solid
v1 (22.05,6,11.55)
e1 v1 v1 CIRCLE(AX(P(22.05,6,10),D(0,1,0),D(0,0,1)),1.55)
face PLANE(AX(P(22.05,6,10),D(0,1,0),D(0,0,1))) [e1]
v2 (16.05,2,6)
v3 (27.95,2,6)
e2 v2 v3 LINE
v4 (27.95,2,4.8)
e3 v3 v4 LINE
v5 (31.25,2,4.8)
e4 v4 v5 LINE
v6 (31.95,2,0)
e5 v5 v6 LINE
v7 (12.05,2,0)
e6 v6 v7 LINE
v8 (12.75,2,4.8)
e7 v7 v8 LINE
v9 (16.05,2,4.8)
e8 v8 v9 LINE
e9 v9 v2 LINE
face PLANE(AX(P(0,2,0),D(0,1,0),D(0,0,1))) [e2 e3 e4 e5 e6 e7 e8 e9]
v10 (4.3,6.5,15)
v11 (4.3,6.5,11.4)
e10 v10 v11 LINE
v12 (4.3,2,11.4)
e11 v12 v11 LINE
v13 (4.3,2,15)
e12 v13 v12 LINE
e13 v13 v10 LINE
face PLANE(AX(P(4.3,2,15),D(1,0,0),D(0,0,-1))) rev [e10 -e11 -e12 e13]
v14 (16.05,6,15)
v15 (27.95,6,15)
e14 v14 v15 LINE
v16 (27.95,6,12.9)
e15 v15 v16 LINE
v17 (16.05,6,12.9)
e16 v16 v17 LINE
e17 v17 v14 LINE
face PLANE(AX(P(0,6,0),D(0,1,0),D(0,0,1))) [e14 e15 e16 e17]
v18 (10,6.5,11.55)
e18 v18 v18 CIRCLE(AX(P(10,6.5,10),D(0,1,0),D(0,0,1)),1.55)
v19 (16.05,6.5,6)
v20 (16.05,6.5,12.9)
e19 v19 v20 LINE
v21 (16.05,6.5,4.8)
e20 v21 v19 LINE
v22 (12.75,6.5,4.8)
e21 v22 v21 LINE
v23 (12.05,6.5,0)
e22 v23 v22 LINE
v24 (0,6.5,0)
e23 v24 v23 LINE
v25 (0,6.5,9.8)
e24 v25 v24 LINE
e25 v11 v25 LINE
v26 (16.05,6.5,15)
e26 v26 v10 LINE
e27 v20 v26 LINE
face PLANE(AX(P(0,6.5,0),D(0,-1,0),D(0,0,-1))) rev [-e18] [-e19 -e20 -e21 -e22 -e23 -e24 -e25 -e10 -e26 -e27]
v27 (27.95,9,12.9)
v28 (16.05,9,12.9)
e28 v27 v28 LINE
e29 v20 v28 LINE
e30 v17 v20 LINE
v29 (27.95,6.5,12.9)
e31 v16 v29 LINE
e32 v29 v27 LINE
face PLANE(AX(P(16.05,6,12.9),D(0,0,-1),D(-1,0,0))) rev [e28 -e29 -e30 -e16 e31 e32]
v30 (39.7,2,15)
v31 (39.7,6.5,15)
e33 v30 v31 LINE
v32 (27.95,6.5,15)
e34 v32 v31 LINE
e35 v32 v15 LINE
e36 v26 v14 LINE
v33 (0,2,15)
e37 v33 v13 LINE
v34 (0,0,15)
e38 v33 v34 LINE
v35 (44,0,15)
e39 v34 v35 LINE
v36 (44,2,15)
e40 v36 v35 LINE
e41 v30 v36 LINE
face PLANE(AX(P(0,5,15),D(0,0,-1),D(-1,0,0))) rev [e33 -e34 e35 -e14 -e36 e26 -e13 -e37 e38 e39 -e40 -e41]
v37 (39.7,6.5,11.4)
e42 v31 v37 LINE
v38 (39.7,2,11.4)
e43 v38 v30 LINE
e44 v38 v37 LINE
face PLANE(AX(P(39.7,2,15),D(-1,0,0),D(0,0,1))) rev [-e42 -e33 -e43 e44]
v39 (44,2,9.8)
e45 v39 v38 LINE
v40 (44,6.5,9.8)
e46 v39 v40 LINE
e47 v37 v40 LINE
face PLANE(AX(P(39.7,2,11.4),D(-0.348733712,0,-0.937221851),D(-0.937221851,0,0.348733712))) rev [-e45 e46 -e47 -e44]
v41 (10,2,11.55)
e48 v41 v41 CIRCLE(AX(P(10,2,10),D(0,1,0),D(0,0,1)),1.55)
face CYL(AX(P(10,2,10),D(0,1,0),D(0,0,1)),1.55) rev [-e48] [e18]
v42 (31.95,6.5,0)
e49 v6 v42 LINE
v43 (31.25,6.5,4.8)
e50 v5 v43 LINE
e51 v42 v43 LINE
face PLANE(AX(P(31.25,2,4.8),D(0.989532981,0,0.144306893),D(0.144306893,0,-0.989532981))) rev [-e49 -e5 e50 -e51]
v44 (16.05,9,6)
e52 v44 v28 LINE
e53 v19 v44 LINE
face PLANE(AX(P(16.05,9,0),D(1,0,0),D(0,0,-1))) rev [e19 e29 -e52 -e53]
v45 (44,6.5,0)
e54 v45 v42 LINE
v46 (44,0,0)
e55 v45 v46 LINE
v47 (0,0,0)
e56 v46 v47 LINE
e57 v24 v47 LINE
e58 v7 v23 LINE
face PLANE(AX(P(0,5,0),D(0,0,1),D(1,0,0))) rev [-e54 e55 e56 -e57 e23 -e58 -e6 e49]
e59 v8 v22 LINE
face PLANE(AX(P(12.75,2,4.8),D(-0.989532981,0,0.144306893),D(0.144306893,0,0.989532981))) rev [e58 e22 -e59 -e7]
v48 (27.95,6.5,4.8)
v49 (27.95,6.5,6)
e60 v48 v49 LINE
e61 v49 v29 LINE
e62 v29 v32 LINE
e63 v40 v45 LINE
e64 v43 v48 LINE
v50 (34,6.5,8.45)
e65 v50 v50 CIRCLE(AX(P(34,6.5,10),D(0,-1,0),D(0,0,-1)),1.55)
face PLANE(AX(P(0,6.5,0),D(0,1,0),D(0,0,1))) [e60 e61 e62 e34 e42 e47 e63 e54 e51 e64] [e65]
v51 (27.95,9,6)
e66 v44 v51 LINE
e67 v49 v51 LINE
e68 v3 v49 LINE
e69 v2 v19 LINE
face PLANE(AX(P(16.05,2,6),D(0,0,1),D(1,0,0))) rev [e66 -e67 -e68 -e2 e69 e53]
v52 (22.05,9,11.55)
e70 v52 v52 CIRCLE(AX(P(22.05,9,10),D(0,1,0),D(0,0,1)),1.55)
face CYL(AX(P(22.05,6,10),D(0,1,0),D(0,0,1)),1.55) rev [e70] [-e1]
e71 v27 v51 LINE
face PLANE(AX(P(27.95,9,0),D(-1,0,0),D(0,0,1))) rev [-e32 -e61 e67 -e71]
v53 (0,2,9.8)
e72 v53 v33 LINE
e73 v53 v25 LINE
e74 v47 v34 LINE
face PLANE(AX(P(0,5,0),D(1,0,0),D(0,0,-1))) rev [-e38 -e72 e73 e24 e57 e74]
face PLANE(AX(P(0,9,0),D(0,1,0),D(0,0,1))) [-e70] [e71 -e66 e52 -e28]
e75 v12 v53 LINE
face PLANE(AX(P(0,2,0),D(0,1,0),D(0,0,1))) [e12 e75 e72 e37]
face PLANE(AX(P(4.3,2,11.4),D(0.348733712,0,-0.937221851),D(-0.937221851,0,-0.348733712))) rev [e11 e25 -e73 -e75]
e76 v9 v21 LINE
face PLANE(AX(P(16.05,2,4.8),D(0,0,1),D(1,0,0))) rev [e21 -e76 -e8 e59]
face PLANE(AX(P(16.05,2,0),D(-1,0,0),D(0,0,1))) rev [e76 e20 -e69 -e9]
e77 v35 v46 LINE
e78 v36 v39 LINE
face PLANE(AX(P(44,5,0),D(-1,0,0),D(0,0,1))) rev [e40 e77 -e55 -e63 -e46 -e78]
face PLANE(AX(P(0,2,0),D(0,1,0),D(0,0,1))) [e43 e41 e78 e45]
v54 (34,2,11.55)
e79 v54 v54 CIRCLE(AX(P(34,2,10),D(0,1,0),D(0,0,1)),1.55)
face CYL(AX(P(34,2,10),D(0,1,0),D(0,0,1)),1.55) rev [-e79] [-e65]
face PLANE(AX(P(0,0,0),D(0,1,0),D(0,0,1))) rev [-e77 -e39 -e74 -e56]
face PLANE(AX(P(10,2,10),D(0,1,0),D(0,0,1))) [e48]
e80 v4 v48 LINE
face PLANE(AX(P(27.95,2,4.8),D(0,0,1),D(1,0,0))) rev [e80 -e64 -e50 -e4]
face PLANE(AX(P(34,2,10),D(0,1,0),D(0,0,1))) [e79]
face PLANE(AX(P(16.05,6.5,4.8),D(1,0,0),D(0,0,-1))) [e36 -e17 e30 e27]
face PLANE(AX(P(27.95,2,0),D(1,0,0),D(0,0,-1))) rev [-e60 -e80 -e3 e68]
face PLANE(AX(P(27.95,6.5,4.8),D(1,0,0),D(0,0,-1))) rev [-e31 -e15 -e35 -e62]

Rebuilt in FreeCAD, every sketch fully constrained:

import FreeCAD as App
import Part
import Sketcher

V = App.Vector
Q = App.Units.Quantity

doc = App.newDocument("Part")
body = doc.addObject("PartDesign::Body", "Body")

sketch1 = body.newObject("Sketcher::SketchObject", "Sketch")
sketch1.AttachmentSupport = (doc.getObject("XZ_Plane"), [""])
sketch1.MapMode = "FlatFace"
sketch1.addGeometry(Part.LineSegment(V(0, 0, 0), V(0, 15, 0)), False)
sketch1.addGeometry(Part.LineSegment(V(0, 15, 0), V(44, 15, 0)), False)
sketch1.addGeometry(Part.LineSegment(V(44, 15, 0), V(44, 0, 0)), False)
sketch1.addGeometry(Part.LineSegment(V(44, 0, 0), V(0, 0, 0)), False)
sketch1.addConstraint(Sketcher.Constraint("Coincident", 0, 2, 1, 1))
sketch1.addConstraint(Sketcher.Constraint("Coincident", 1, 2, 2, 1))
sketch1.addConstraint(Sketcher.Constraint("Coincident", 2, 2, 3, 1))
sketch1.addConstraint(Sketcher.Constraint("Coincident", 3, 2, 0, 1))
sketch1.addConstraint(Sketcher.Constraint("Vertical", 0))
sketch1.addConstraint(Sketcher.Constraint("Horizontal", 1))
sketch1.addConstraint(Sketcher.Constraint("Vertical", 2))
sketch1.addConstraint(Sketcher.Constraint("Horizontal", 3))
sketch1.addConstraint(Sketcher.Constraint("Coincident", 3, 2, -1, 1))
sketch1.addConstraint(Sketcher.Constraint("DistanceX", 1, 1, 1, 2, Q("44 mm")))
sketch1.addConstraint(Sketcher.Constraint("DistanceY", 0, 1, 0, 2, Q("15 mm")))
pad1 = body.newObject("PartDesign::Pad", "Pad")
pad1.Profile = sketch1
pad1.Length = 5
pad1.Reversed = True

sketch2 = body.newObject("Sketcher::SketchObject", "Sketch001")
sketch2.AttachmentSupport = (doc.getObject("XZ_Plane"), [""])
sketch2.MapMode = "FlatFace"
sketch2.AttachmentOffset = App.Placement(V(0, 0, -5), App.Rotation())
sketch2.addGeometry(Part.LineSegment(V(16, 0, 0), V(16, 15, 0)), False)
sketch2.addGeometry(Part.LineSegment(V(16, 15, 0), V(28, 15, 0)), False)
sketch2.addGeometry(Part.LineSegment(V(28, 15, 0), V(28, 0, 0)), False)
sketch2.addGeometry(Part.LineSegment(V(28, 0, 0), V(16, 0, 0)), False)
sketch2.addConstraint(Sketcher.Constraint("Coincident", 0, 2, 1, 1))
sketch2.addConstraint(Sketcher.Constraint("Coincident", 1, 2, 2, 1))
sketch2.addConstraint(Sketcher.Constraint("Coincident", 2, 2, 3, 1))
sketch2.addConstraint(Sketcher.Constraint("Coincident", 3, 2, 0, 1))
sketch2.addConstraint(Sketcher.Constraint("Vertical", 0))
sketch2.addConstraint(Sketcher.Constraint("Horizontal", 1))
sketch2.addConstraint(Sketcher.Constraint("Vertical", 2))
sketch2.addConstraint(Sketcher.Constraint("Horizontal", 3))
sketch2.addConstraint(Sketcher.Constraint("PointOnObject", 2, 2, -1))
sketch2.addConstraint(Sketcher.Constraint("DistanceY", 0, 1, 0, 2, Q("15 mm")))
sketch2.addConstraint(Sketcher.Constraint("DistanceX", 1, 1, 1, 2, Q("11.9 mm")))
sketch2.addConstraint(Sketcher.Constraint("DistanceX", -1, 1, 0, 2, Q("16.05 mm")))
pad2 = body.newObject("PartDesign::Pad", "Pad001")
pad2.Profile = sketch2
pad2.Length = 4
pad2.Reversed = True

sketch3 = body.newObject("Sketcher::SketchObject", "Sketch002")
sketch3.AttachmentSupport = (doc.getObject("XZ_Plane"), [""])
sketch3.MapMode = "FlatFace"
sketch3.AttachmentOffset = App.Placement(V(0, 0, -5), App.Rotation())
sketch3.addGeometry(Part.Circle(V(10, 10, 0), V(0, 0, 1), 1.6), False)
sketch3.addGeometry(Part.Circle(V(34, 10, 0), V(0, 0, 1), 1.6), False)
sketch3.addConstraint(Sketcher.Constraint("Equal", 0, 1))
sketch3.addConstraint(Sketcher.Constraint("Horizontal", 0, 3, 1, 3))
sketch3.addConstraint(Sketcher.Constraint("Diameter", 0, Q("3.1 mm")))
sketch3.addConstraint(Sketcher.Constraint("DistanceX", -1, 1, 0, 3, Q("10 mm")))
sketch3.addConstraint(Sketcher.Constraint("DistanceY", -1, 1, 0, 3, Q("10 mm")))
sketch3.addConstraint(Sketcher.Constraint("DistanceX", -1, 1, 1, 3, Q("34 mm")))
pocket1 = body.newObject("PartDesign::Pocket", "Pocket")
pocket1.Profile = sketch3
pocket1.Length = 3
pocket1.Reversed = True

sketch4 = body.newObject("Sketcher::SketchObject", "Sketch003")
sketch4.AttachmentSupport = (doc.getObject("XZ_Plane"), [""])
sketch4.MapMode = "FlatFace"
sketch4.AttachmentOffset = App.Placement(V(0, 0, -9), App.Rotation())
sketch4.addGeometry(Part.Circle(V(22.1, 10, 0), V(0, 0, 1), 1.6), False)
sketch4.addConstraint(Sketcher.Constraint("Diameter", 0, Q("3.1 mm")))
sketch4.addConstraint(Sketcher.Constraint("DistanceY", -1, 1, 0, 3, Q("10 mm")))
sketch4.addConstraint(Sketcher.Constraint("DistanceX", -1, 1, 0, 3, Q("22.05 mm")))
pocket2 = body.newObject("PartDesign::Pocket", "Pocket001")
pocket2.Profile = sketch4
pocket2.Length = 3
pocket2.Reversed = True

sketch5 = body.newObject("Sketcher::SketchObject", "Sketch004")
sketch5.AttachmentSupport = (doc.getObject("XZ_Plane"), [""])
sketch5.MapMode = "FlatFace"
sketch5.AttachmentOffset = App.Placement(V(0, 0, -5), App.Rotation())
sketch5.addGeometry(Part.LineSegment(V(12.8, 4.8, 0), V(16.1, 4.8, 0)), False)
sketch5.addGeometry(Part.LineSegment(V(16.1, 4.8, 0), V(16.1, 0, 0)), False)
sketch5.addGeometry(Part.LineSegment(V(16.1, 0, 0), V(12.1, 0, 0)), False)
sketch5.addGeometry(Part.LineSegment(V(12.1, 0, 0), V(12.8, 4.8, 0)), False)
sketch5.addGeometry(Part.LineSegment(V(0, 15, 0), V(4.3, 15, 0)), False)
sketch5.addGeometry(Part.LineSegment(V(4.3, 15, 0), V(4.3, 11.4, 0)), False)
sketch5.addGeometry(Part.LineSegment(V(4.3, 11.4, 0), V(0, 9.8, 0)), False)
sketch5.addGeometry(Part.LineSegment(V(0, 9.8, 0), V(0, 15, 0)), False)
sketch5.addGeometry(Part.LineSegment(V(44, 9.8, 0), V(39.7, 11.4, 0)), False)
sketch5.addGeometry(Part.LineSegment(V(39.7, 11.4, 0), V(39.7, 15, 0)), False)
sketch5.addGeometry(Part.LineSegment(V(39.7, 15, 0), V(44, 15, 0)), False)
sketch5.addGeometry(Part.LineSegment(V(44, 15, 0), V(44, 9.8, 0)), False)
sketch5.addGeometry(Part.LineSegment(V(31.9, 0, 0), V(27.9, 0, 0)), False)
sketch5.addGeometry(Part.LineSegment(V(27.9, 0, 0), V(27.9, 4.8, 0)), False)
sketch5.addGeometry(Part.LineSegment(V(27.9, 4.8, 0), V(31.2, 4.8, 0)), False)
sketch5.addGeometry(Part.LineSegment(V(31.2, 4.8, 0), V(31.9, 0, 0)), False)
sketch5.addConstraint(Sketcher.Constraint("Coincident", 0, 2, 1, 1))
sketch5.addConstraint(Sketcher.Constraint("Coincident", 1, 2, 2, 1))
sketch5.addConstraint(Sketcher.Constraint("Coincident", 2, 2, 3, 1))
sketch5.addConstraint(Sketcher.Constraint("Coincident", 3, 2, 0, 1))
sketch5.addConstraint(Sketcher.Constraint("Coincident", 4, 2, 5, 1))
sketch5.addConstraint(Sketcher.Constraint("Coincident", 5, 2, 6, 1))
sketch5.addConstraint(Sketcher.Constraint("Coincident", 6, 2, 7, 1))
sketch5.addConstraint(Sketcher.Constraint("Coincident", 7, 2, 4, 1))
sketch5.addConstraint(Sketcher.Constraint("Coincident", 8, 2, 9, 1))
sketch5.addConstraint(Sketcher.Constraint("Coincident", 9, 2, 10, 1))
sketch5.addConstraint(Sketcher.Constraint("Coincident", 10, 2, 11, 1))
sketch5.addConstraint(Sketcher.Constraint("Coincident", 11, 2, 8, 1))
sketch5.addConstraint(Sketcher.Constraint("Coincident", 12, 2, 13, 1))
sketch5.addConstraint(Sketcher.Constraint("Coincident", 13, 2, 14, 1))
sketch5.addConstraint(Sketcher.Constraint("Coincident", 14, 2, 15, 1))
sketch5.addConstraint(Sketcher.Constraint("Coincident", 15, 2, 12, 1))
sketch5.addConstraint(Sketcher.Constraint("Horizontal", 0))
sketch5.addConstraint(Sketcher.Constraint("Vertical", 1))
sketch5.addConstraint(Sketcher.Constraint("Horizontal", 2))
sketch5.addConstraint(Sketcher.Constraint("Horizontal", 4))
sketch5.addConstraint(Sketcher.Constraint("Vertical", 5))
sketch5.addConstraint(Sketcher.Constraint("Vertical", 7))
sketch5.addConstraint(Sketcher.Constraint("Vertical", 9))
sketch5.addConstraint(Sketcher.Constraint("Horizontal", 10))
sketch5.addConstraint(Sketcher.Constraint("Vertical", 11))
sketch5.addConstraint(Sketcher.Constraint("Horizontal", 12))
sketch5.addConstraint(Sketcher.Constraint("Vertical", 13))
sketch5.addConstraint(Sketcher.Constraint("Horizontal", 14))
sketch5.addConstraint(Sketcher.Constraint("PointOnObject", 1, 2, -1))
sketch5.addConstraint(Sketcher.Constraint("PointOnObject", 6, 2, -2))
sketch5.addConstraint(Sketcher.Constraint("PointOnObject", 12, 2, -1))
sketch5.addConstraint(Sketcher.Constraint("Horizontal", 5, 2, 8, 2))
sketch5.addConstraint(Sketcher.Constraint("Horizontal", 7, 2, 9, 2))
sketch5.addConstraint(Sketcher.Constraint("Horizontal", 6, 2, 11, 2))
sketch5.addConstraint(Sketcher.Constraint("Horizontal", 3, 2, 13, 2))
sketch5.addConstraint(Sketcher.Constraint("Equal", 4, 10))
sketch5.addConstraint(Sketcher.Constraint("Equal", 2, 12))
sketch5.addConstraint(Sketcher.Constraint("Equal", 0, 14))
sketch5.addConstraint(Sketcher.Constraint("DistanceX", 2, 2, 2, 1, Q("4 mm")))
sketch5.addConstraint(Sketcher.Constraint("DistanceX", 0, 1, 0, 2, Q("3.3 mm")))
sketch5.addConstraint(Sketcher.Constraint("DistanceX", 4, 1, 4, 2, Q("4.3 mm")))
sketch5.addConstraint(Sketcher.Constraint("DistanceY", 1, 2, 1, 1, Q("4.8 mm")))
sketch5.addConstraint(Sketcher.Constraint("DistanceY", 5, 2, 5, 1, Q("3.6 mm")))
sketch5.addConstraint(Sketcher.Constraint("DistanceY", 7, 1, 7, 2, Q("5.2 mm")))
sketch5.addConstraint(Sketcher.Constraint("DistanceY", -1, 1, 4, 2, Q("15 mm")))
sketch5.addConstraint(Sketcher.Constraint("DistanceX", -1, 1, 10, 2, Q("44 mm")))
sketch5.addConstraint(Sketcher.Constraint("DistanceX", 1, 2, 12, 2, Q("11.9 mm")))
sketch5.addConstraint(Sketcher.Constraint("DistanceX", -1, 1, 0, 2, Q("16.05 mm")))
pocket3 = body.newObject("PartDesign::Pocket", "Pocket002")
pocket3.Profile = sketch5
pocket3.Length = 3
pocket3.Reversed = True

sketch6 = body.newObject("Sketcher::SketchObject", "Sketch005")
sketch6.AttachmentSupport = (doc.getObject("XZ_Plane"), [""])
sketch6.MapMode = "FlatFace"
sketch6.AttachmentOffset = App.Placement(V(0, 0, -9), App.Rotation())
sketch6.addGeometry(Part.LineSegment(V(16, 0, 0), V(16, 6, 0)), False)
sketch6.addGeometry(Part.LineSegment(V(16, 6, 0), V(28, 6, 0)), False)
sketch6.addGeometry(Part.LineSegment(V(28, 6, 0), V(28, 0, 0)), False)
sketch6.addGeometry(Part.LineSegment(V(28, 0, 0), V(16, 0, 0)), False)
sketch6.addConstraint(Sketcher.Constraint("Coincident", 0, 2, 1, 1))
sketch6.addConstraint(Sketcher.Constraint("Coincident", 1, 2, 2, 1))
sketch6.addConstraint(Sketcher.Constraint("Coincident", 2, 2, 3, 1))
sketch6.addConstraint(Sketcher.Constraint("Coincident", 3, 2, 0, 1))
sketch6.addConstraint(Sketcher.Constraint("Vertical", 0))
sketch6.addConstraint(Sketcher.Constraint("Horizontal", 1))
sketch6.addConstraint(Sketcher.Constraint("Vertical", 2))
sketch6.addConstraint(Sketcher.Constraint("Horizontal", 3))
sketch6.addConstraint(Sketcher.Constraint("PointOnObject", 2, 2, -1))
sketch6.addConstraint(Sketcher.Constraint("DistanceY", 0, 1, 0, 2, Q("6 mm")))
sketch6.addConstraint(Sketcher.Constraint("DistanceX", 1, 1, 1, 2, Q("11.9 mm")))
sketch6.addConstraint(Sketcher.Constraint("DistanceX", -1, 1, 0, 2, Q("16.05 mm")))
pocket4 = body.newObject("PartDesign::Pocket", "Pocket003")
pocket4.Profile = sketch6
pocket4.Length = 7
pocket4.Reversed = True

sketch7 = body.newObject("Sketcher::SketchObject", "Sketch006")
sketch7.AttachmentSupport = (doc.getObject("XZ_Plane"), [""])
sketch7.MapMode = "FlatFace"
sketch7.AttachmentOffset = App.Placement(V(0, 0, -9), App.Rotation())
sketch7.addGeometry(Part.LineSegment(V(16.1, 12.9, 0), V(16.1, 15, 0)), False)
sketch7.addGeometry(Part.LineSegment(V(16.1, 15, 0), V(27.9, 15, 0)), False)
sketch7.addGeometry(Part.LineSegment(V(27.9, 15, 0), V(27.9, 12.9, 0)), False)
sketch7.addGeometry(Part.LineSegment(V(27.9, 12.9, 0), V(16.1, 12.9, 0)), False)
sketch7.addConstraint(Sketcher.Constraint("Coincident", 0, 2, 1, 1))
sketch7.addConstraint(Sketcher.Constraint("Coincident", 1, 2, 2, 1))
sketch7.addConstraint(Sketcher.Constraint("Coincident", 2, 2, 3, 1))
sketch7.addConstraint(Sketcher.Constraint("Coincident", 3, 2, 0, 1))
sketch7.addConstraint(Sketcher.Constraint("Vertical", 0))
sketch7.addConstraint(Sketcher.Constraint("Horizontal", 1))
sketch7.addConstraint(Sketcher.Constraint("Vertical", 2))
sketch7.addConstraint(Sketcher.Constraint("Horizontal", 3))
sketch7.addConstraint(Sketcher.Constraint("DistanceX", 1, 1, 1, 2, Q("11.9 mm")))
sketch7.addConstraint(Sketcher.Constraint("DistanceY", 0, 1, 0, 2, Q("2.1 mm")))
sketch7.addConstraint(Sketcher.Constraint("DistanceY", -1, 1, 0, 2, Q("15 mm")))
sketch7.addConstraint(Sketcher.Constraint("DistanceX", -1, 1, 0, 2, Q("16.05 mm")))
pocket5 = body.newObject("PartDesign::Pocket", "Pocket004")
pocket5.Profile = sketch7
pocket5.Length = 3
pocket5.Reversed = True

sketch8 = body.newObject("Sketcher::SketchObject", "Sketch007")
sketch8.AttachmentSupport = (doc.getObject("XZ_Plane"), [""])
sketch8.MapMode = "FlatFace"
sketch8.AttachmentOffset = App.Placement(V(0, 0, -5), App.Rotation())
sketch8.addGeometry(Part.LineSegment(V(12.1, 0, 0), V(0, 0, 0)), False)
sketch8.addGeometry(Part.LineSegment(V(0, 0, 0), V(0, 9.8, 0)), False)
sketch8.addGeometry(Part.LineSegment(V(0, 9.8, 0), V(4.3, 11.4, 0)), False)
sketch8.addGeometry(Part.LineSegment(V(4.3, 11.4, 0), V(4.3, 15, 0)), False)
sketch8.addGeometry(Part.LineSegment(V(4.3, 15, 0), V(16.1, 15, 0)), False)
sketch8.addGeometry(Part.LineSegment(V(16.1, 15, 0), V(16.1, 4.8, 0)), False)
sketch8.addGeometry(Part.LineSegment(V(16.1, 4.8, 0), V(12.8, 4.8, 0)), False)
sketch8.addGeometry(Part.LineSegment(V(12.8, 4.8, 0), V(12.1, 0, 0)), False)
sketch8.addGeometry(Part.Circle(V(10, 10, 0), V(0, 0, 1), 1.6), False)
sketch8.addGeometry(Part.LineSegment(V(39.7, 11.4, 0), V(44, 9.8, 0)), False)
sketch8.addGeometry(Part.LineSegment(V(44, 9.8, 0), V(44, 0, 0)), False)
sketch8.addGeometry(Part.LineSegment(V(44, 0, 0), V(31.9, 0, 0)), False)
sketch8.addGeometry(Part.LineSegment(V(31.9, 0, 0), V(31.2, 4.8, 0)), False)
sketch8.addGeometry(Part.LineSegment(V(31.2, 4.8, 0), V(27.9, 4.8, 0)), False)
sketch8.addGeometry(Part.LineSegment(V(27.9, 4.8, 0), V(27.9, 15, 0)), False)
sketch8.addGeometry(Part.LineSegment(V(27.9, 15, 0), V(39.7, 15, 0)), False)
sketch8.addGeometry(Part.LineSegment(V(39.7, 15, 0), V(39.7, 11.4, 0)), False)
sketch8.addGeometry(Part.Circle(V(34, 10, 0), V(0, 0, 1), 1.6), False)
sketch8.addConstraint(Sketcher.Constraint("Coincident", 0, 2, 1, 1))
sketch8.addConstraint(Sketcher.Constraint("Coincident", 1, 2, 2, 1))
sketch8.addConstraint(Sketcher.Constraint("Coincident", 2, 2, 3, 1))
sketch8.addConstraint(Sketcher.Constraint("Coincident", 3, 2, 4, 1))
sketch8.addConstraint(Sketcher.Constraint("Coincident", 4, 2, 5, 1))
sketch8.addConstraint(Sketcher.Constraint("Coincident", 5, 2, 6, 1))
sketch8.addConstraint(Sketcher.Constraint("Coincident", 6, 2, 7, 1))
sketch8.addConstraint(Sketcher.Constraint("Coincident", 7, 2, 0, 1))
sketch8.addConstraint(Sketcher.Constraint("Coincident", 9, 2, 10, 1))
sketch8.addConstraint(Sketcher.Constraint("Coincident", 10, 2, 11, 1))
sketch8.addConstraint(Sketcher.Constraint("Coincident", 11, 2, 12, 1))
sketch8.addConstraint(Sketcher.Constraint("Coincident", 12, 2, 13, 1))
sketch8.addConstraint(Sketcher.Constraint("Coincident", 13, 2, 14, 1))
sketch8.addConstraint(Sketcher.Constraint("Coincident", 14, 2, 15, 1))
sketch8.addConstraint(Sketcher.Constraint("Coincident", 15, 2, 16, 1))
sketch8.addConstraint(Sketcher.Constraint("Coincident", 16, 2, 9, 1))
sketch8.addConstraint(Sketcher.Constraint("Horizontal", 0))
sketch8.addConstraint(Sketcher.Constraint("Vertical", 1))
sketch8.addConstraint(Sketcher.Constraint("Vertical", 3))
sketch8.addConstraint(Sketcher.Constraint("Horizontal", 4))
sketch8.addConstraint(Sketcher.Constraint("Vertical", 5))
sketch8.addConstraint(Sketcher.Constraint("Horizontal", 6))
sketch8.addConstraint(Sketcher.Constraint("Vertical", 10))
sketch8.addConstraint(Sketcher.Constraint("Horizontal", 11))
sketch8.addConstraint(Sketcher.Constraint("Horizontal", 13))
sketch8.addConstraint(Sketcher.Constraint("Vertical", 14))
sketch8.addConstraint(Sketcher.Constraint("Horizontal", 15))
sketch8.addConstraint(Sketcher.Constraint("Vertical", 16))
sketch8.addConstraint(Sketcher.Constraint("Coincident", 0, 2, -1, 1))
sketch8.addConstraint(Sketcher.Constraint("Equal", 8, 17))
sketch8.addConstraint(Sketcher.Constraint("PointOnObject", 10, 2, -1))
sketch8.addConstraint(Sketcher.Constraint("Horizontal", 8, 3, 17, 3))
sketch8.addConstraint(Sketcher.Constraint("Horizontal", 1, 2, 9, 2))
sketch8.addConstraint(Sketcher.Constraint("Horizontal", 6, 2, 12, 2))
sketch8.addConstraint(Sketcher.Constraint("Horizontal", 4, 2, 14, 2))
sketch8.addConstraint(Sketcher.Constraint("Horizontal", 2, 2, 16, 2))
sketch8.addConstraint(Sketcher.Constraint("Equal", 0, 11))
sketch8.addConstraint(Sketcher.Constraint("Equal", 6, 13))
sketch8.addConstraint(Sketcher.Constraint("Equal", 4, 15))
sketch8.addConstraint(Sketcher.Constraint("Equal", 2, 9))
sketch8.addConstraint(Sketcher.Constraint("Diameter", 8, Q("3.1 mm")))
sketch8.addConstraint(Sketcher.Constraint("DistanceX", 6, 2, 6, 1, Q("3.3 mm")))
sketch8.addConstraint(Sketcher.Constraint("DistanceY", 1, 1, 1, 2, Q("9.8 mm")))
sketch8.addConstraint(Sketcher.Constraint("DistanceY", 3, 1, 3, 2, Q("3.6 mm")))
sketch8.addConstraint(Sketcher.Constraint("DistanceY", 5, 2, 5, 1, Q("10.2 mm")))
sketch8.addConstraint(Sketcher.Constraint("DistanceX", -1, 1, 8, 3, Q("10 mm")))
sketch8.addConstraint(Sketcher.Constraint("DistanceY", -1, 1, 8, 3, Q("10 mm")))
sketch8.addConstraint(Sketcher.Constraint("DistanceX", -1, 1, 17, 3, Q("34 mm")))
sketch8.addConstraint(Sketcher.Constraint("DistanceY", -1, 1, 3, 2, Q("15 mm")))
sketch8.addConstraint(Sketcher.Constraint("DistanceX", -1, 1, 9, 2, Q("44 mm")))
sketch8.addConstraint(Sketcher.Constraint("DistanceX", 7, 2, 5, 2, Q("4 mm")))
sketch8.addConstraint(Sketcher.Constraint("DistanceX", 0, 2, 0, 1, Q("12.05 mm")))
sketch8.addConstraint(Sketcher.Constraint("DistanceX", 4, 1, 4, 2, Q("11.75 mm")))
pad3 = body.newObject("PartDesign::Pad", "Pad002")
pad3.Profile = sketch8
pad3.Length = 1.5
pad3.Reversed = True

doc.recompute()
